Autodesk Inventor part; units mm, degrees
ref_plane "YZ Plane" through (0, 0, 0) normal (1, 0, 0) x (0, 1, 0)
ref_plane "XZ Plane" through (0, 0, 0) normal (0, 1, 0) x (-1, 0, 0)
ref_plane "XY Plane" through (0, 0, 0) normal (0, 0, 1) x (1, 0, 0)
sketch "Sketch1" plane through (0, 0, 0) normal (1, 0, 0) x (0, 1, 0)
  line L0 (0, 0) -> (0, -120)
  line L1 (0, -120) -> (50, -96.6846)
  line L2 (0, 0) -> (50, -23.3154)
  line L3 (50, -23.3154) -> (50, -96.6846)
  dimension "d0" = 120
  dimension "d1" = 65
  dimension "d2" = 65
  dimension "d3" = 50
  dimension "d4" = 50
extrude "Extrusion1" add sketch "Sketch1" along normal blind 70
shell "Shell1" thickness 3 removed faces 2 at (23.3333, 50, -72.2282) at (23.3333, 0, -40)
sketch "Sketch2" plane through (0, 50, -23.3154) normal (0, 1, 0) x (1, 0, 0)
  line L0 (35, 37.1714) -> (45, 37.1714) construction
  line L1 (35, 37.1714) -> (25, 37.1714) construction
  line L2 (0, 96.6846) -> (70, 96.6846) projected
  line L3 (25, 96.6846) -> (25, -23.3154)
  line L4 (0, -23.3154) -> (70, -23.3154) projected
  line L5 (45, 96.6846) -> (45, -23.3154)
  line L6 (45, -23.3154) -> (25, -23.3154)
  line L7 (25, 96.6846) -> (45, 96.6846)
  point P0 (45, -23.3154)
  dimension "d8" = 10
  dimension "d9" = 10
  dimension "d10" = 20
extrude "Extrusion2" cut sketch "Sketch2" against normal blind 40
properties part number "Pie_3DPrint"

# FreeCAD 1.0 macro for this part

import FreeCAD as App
import Part
import Sketcher

V = App.Vector
Q = App.Units.Quantity


def faces_at(feature, points):
    """Names of the faces that lie closest to the given points."""
    faces = feature.Shape.Faces
    near = lambda p: min(range(len(faces)), key=lambda i: faces[i].distToShape(Part.Vertex(*p))[0])
    return sorted({f"Face{near(p) + 1}" for p in points})


def add_polygon(sketch, points):
    """Adds a closed chain of lines whose ends are joined by coincident constraints."""
    first, n = sketch.GeometryCount, len(points)
    for a, b in zip(points, points[1:] + points[:1]):
        sketch.addGeometry(Part.LineSegment(App.Vector(*a, 0), App.Vector(*b, 0)), False)
    for i in range(n):
        sketch.addConstraint(Sketcher.Constraint("Coincident", first + i, 2, first + (i + 1) % n, 1))

doc = App.newDocument("Part")
params = doc.addObject("Spreadsheet::Sheet", "Params")
for row, (alias, value) in enumerate([
    ("pad1_length", "2.7559055 in"),
    ("thickness_wall", "0.1181102 in"),
    ("pocket1_length", "1.5748031 in"),
], start=1):
    params.set(f"A{row}", alias)
    params.set(f"B{row}", "=" + value)
    params.setAlias(f"B{row}", alias)

body = doc.addObject("PartDesign::Body", "Body")

# Sketch on YZ plane
sketch1 = body.newObject("Sketcher::SketchObject", "Sketch")
sketch1.AttachmentSupport = (doc.getObject("YZ_Plane"), [""])
sketch1.MapMode = "FlatFace"
add_polygon(sketch1, [(50, -23.3154), (0, 0), (0, -120), (50, -96.6846)])  # lines 0-3
sketch1.addConstraint([
    Sketcher.Constraint("Vertical", 1),
    Sketcher.Constraint("Vertical", 3),
    Sketcher.Constraint("Coincident", 0, 2, -1, 1),
    Sketcher.Constraint("Equal", 0, 2),
    Sketcher.Constraint("DistanceY", 1, 2, 1, 1, Q("4.7244 in")),
    Sketcher.Constraint("Angle", 0, Q("155 deg")),
    Sketcher.Constraint("DistanceX", -1, 1, 2, 2, Q("1.9685 in")),
])
pad1 = body.newObject("PartDesign::Pad", "Pad")
pad1.Profile = sketch1
pad1.setExpression("Length", "Params.pad1_length")
doc.recompute()

thickness = body.newObject("PartDesign::Thickness", "Thickness")
thickness.Base = (pad1, faces_at(pad1, [(23.333, 50, -72.228), (23.333, 0, -40)]))
thickness.setExpression("Value", "Params.thickness_wall")
thickness.Reversed = True
thickness.Join = "Intersection"

# Sketch on XZ plane
sketch2 = body.newObject("Sketcher::SketchObject", "Sketch001")
sketch2.AttachmentSupport = (doc.getObject("XZ_Plane"), [""])
sketch2.MapMode = "FlatFace"
sketch2.AttachmentOffset = App.Placement(V(0, 0, -1.9685039 * 25.4), App.Rotation())
add_polygon(sketch2, [(45, -120), (25, -120), (25, 0), (45, 0)])  # lines 0-3
sketch2.addConstraint([
    Sketcher.Constraint("Horizontal", 0),
    Sketcher.Constraint("Vertical", 1),
    Sketcher.Constraint("Horizontal", 2),
    Sketcher.Constraint("Vertical", 3),
    Sketcher.Constraint("PointOnObject", 1, 2, -1),
    Sketcher.Constraint("DistanceX", 0, 2, 0, 1, Q("0.7874 in")),
    Sketcher.Constraint("DistanceY", 1, 1, 1, 2, Q("4.7244 in")),
    Sketcher.Constraint("DistanceX", -1, 1, 0, 2, Q("25 mm")),
])
pocket1 = body.newObject("PartDesign::Pocket", "Pocket")
pocket1.Profile = sketch2
pocket1.setExpression("Length", "Params.pocket1_length")
pocket1.Reversed = True

doc.recompute()
